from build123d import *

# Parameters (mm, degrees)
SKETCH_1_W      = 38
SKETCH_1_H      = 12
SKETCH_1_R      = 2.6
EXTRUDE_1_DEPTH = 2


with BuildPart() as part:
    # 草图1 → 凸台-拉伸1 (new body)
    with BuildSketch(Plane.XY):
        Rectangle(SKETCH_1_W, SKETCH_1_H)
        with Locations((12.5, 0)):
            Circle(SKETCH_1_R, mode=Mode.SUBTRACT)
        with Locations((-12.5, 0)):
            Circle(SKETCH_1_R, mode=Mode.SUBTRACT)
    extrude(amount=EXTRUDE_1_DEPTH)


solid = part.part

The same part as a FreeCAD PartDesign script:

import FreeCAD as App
import Part
import Sketcher

V = App.Vector

doc = App.newDocument("Part")
params = doc.addObject("Spreadsheet::Sheet", "Params")
for row, (alias, value) in enumerate([
    ("sketch1_diameter", "5.2 mm"),
    ("sketch1_width", "38 mm"),
    ("sketch1_height", "12 mm"),
    ("pad1_length", "2 mm"),
], start=1):
    params.set(f"A{row}", alias)
    params.set(f"B{row}", "=" + value)
    params.setAlias(f"B{row}", alias)

body = doc.addObject("PartDesign::Body", "Body")

# Sketch on XY plane
sketch1 = body.newObject("Sketcher::SketchObject", "Sketch")
sketch1.AttachmentSupport = (doc.getObject("XY_Plane"), [""])
sketch1.MapMode = "FlatFace"
sketch1.addGeometry(Part.LineSegment(V(-19, 6, 0), V(-19, -6, 0)), False)
sketch1.addGeometry(Part.LineSegment(V(-19, -6, 0), V(19, -6, 0)), False)
sketch1.addGeometry(Part.LineSegment(V(19, -6, 0), V(19, 6, 0)), False)
sketch1.addGeometry(Part.LineSegment(V(19, 6, 0), V(-19, 6, 0)), False)
sketch1.addGeometry(Part.Circle(V(-12.5, 0, 0), V(0, 0, 1), 2.6), False)
sketch1.addGeometry(Part.Circle(V(12.5, 0, 0), V(0, 0, 1), 2.6), False)
sketch1.addConstraint(Sketcher.Constraint("Coincident", 0, 2, 1, 1))
sketch1.addConstraint(Sketcher.Constraint("Coincident", 1, 2, 2, 1))
sketch1.addConstraint(Sketcher.Constraint("Coincident", 2, 2, 3, 1))
sketch1.addConstraint(Sketcher.Constraint("Coincident", 3, 2, 0, 1))
sketch1.addConstraint(Sketcher.Constraint("Vertical", 0))
sketch1.addConstraint(Sketcher.Constraint("Horizontal", 1))
sketch1.addConstraint(Sketcher.Constraint("Vertical", 2))
sketch1.addConstraint(Sketcher.Constraint("Horizontal", 3))
sketch1.addConstraint(Sketcher.Constraint("Equal", 4, 5))
sketch1.addConstraint(Sketcher.Constraint("Symmetric", 4, 3, 5, 3, -1, 1))
sketch1.addConstraint(Sketcher.Constraint("Symmetric", 0, 2, 2, 2, -1, 1))
sketch1.addConstraint(Sketcher.Constraint("PointOnObject", 4, 3, -1))
sketch1.addConstraint(Sketcher.Constraint("Diameter", 4, 5.2))
sketch1.addConstraint(Sketcher.Constraint("DistanceX", 1, 1, 1, 2, 38.0))
sketch1.addConstraint(Sketcher.Constraint("DistanceY", 0, 2, 0, 1, 12.0))
sketch1.addConstraint(Sketcher.Constraint("DistanceX", 4, 3, 5, 3, 25.0))
sketch1.setExpression("Constraints[12]", "Params.sketch1_diameter")
sketch1.setExpression("Constraints[13]", "Params.sketch1_width")
sketch1.setExpression("Constraints[14]", "Params.sketch1_height")
pad1 = body.newObject("PartDesign::Pad", "Pad")
pad1.Profile = sketch1
pad1.setExpression("Length", "Params.pad1_length")

doc.recompute()
